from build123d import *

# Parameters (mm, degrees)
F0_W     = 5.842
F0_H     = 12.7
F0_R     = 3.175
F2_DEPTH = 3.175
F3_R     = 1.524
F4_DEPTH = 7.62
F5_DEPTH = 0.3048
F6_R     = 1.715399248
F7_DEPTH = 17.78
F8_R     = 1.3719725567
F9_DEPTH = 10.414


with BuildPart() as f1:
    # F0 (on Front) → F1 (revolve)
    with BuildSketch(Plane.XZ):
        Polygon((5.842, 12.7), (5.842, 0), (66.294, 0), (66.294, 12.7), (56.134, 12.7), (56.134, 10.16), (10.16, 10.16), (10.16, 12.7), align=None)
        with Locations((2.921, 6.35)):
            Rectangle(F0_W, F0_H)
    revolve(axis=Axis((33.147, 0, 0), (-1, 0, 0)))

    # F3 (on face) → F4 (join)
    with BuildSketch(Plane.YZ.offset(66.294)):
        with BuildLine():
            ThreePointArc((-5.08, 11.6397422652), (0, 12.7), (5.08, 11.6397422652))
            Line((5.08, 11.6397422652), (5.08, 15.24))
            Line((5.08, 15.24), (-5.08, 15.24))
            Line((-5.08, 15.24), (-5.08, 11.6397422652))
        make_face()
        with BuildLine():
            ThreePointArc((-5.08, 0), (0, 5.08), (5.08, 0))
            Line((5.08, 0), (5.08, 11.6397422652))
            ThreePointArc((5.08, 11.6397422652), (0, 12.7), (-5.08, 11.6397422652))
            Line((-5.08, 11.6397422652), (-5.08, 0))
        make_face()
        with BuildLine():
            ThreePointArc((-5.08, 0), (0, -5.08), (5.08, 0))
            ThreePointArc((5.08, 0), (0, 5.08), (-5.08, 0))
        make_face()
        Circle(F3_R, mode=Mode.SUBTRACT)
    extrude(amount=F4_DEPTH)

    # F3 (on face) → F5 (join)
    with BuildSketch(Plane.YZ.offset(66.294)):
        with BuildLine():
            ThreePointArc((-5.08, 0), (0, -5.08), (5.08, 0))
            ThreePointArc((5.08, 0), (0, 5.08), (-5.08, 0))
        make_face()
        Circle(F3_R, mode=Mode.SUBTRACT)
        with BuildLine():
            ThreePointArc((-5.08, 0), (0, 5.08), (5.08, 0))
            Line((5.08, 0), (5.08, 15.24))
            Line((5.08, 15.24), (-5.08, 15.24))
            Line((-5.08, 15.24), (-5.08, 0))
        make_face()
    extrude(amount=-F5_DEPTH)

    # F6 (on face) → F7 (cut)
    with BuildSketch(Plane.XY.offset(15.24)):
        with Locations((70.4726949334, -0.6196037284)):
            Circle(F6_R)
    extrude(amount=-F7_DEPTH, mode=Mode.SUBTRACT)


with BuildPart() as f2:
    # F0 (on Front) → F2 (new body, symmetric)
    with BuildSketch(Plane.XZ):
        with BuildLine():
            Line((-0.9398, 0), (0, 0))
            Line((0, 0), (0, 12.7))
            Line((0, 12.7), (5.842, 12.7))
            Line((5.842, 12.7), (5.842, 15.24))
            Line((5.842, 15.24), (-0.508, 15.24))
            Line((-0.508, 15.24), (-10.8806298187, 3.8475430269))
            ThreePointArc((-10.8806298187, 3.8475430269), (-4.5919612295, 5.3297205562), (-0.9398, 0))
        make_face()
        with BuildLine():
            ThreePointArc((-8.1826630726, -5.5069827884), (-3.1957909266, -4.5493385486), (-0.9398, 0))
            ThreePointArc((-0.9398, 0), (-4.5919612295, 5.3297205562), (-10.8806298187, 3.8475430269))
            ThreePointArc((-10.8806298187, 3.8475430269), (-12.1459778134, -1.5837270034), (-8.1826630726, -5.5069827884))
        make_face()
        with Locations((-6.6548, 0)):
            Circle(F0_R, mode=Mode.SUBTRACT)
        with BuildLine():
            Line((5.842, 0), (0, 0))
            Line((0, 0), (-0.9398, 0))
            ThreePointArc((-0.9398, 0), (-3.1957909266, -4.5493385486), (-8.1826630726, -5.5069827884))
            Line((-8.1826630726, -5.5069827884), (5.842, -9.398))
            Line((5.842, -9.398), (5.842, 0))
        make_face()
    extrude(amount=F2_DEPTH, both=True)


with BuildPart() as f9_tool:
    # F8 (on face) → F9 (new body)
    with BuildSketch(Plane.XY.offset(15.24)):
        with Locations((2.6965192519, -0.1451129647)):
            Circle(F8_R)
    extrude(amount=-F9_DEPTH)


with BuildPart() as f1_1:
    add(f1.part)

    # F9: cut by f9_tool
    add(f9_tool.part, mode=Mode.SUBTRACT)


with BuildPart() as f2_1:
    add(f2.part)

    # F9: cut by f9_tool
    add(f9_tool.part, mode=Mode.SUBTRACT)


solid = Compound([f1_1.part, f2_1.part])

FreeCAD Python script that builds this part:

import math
import FreeCAD as App
import Part
import Sketcher
Q = App.Units.Quantity

doc = App.newDocument("Part")
params = doc.addObject("Spreadsheet::Sheet", "Params")
for row, (alias, value) in enumerate([
    ("sketch1_width", "0.4 in"),
    ("sketch1_height", "0.5 in"),
    ("sketch1_height2", "0.1 in"),
    ("sketch1_width2", "1.81 in"),
    ("revolution_angle", "360 deg"),
    ("sketch2_radius", "0.2 in"),
    ("sketch2_diameter", "0.12 in"),
    ("sketch2_height", "0.6 in"),
    ("pad1_length", "0.3 in"),
    ("sketch3_radius", "0.2 in"),
    ("sketch3_diameter", "0.12 in"),
    ("sketch3_height", "0.6 in"),
    ("pad2_length", "0.012 in"),
    ("pocket1_length", "0.7 in"),
    ("sketch5_diameter", "0.25 in"),
    ("sketch5_height", "0.5 in"),
    ("sketch5_height2", "0.1 in"),
    ("sketch5_radius", "0.225 in"),
    ("sketch5_width", "0.23 in"),
    ("pad3_length", "0.25 in"),
    ("pad4_length", "0.41 in"),
], start=1):
    params.set(f"A{row}", alias)
    params.set(f"B{row}", "=" + value)
    params.setAlias(f"B{row}", alias)

body = doc.addObject("PartDesign::Body", "Body")

sketch1 = body.newObject("Sketcher::SketchObject", "Sketch")
sketch1.AttachmentSupport = (doc.getObject("XZ_Plane"), [""])
sketch1.MapMode = "FlatFace"
sketch1.addGeometry(Part.LineSegment(App.Vector(66.3, 0, 0), App.Vector(66.3, 12.7, 0)), False)
sketch1.addGeometry(Part.LineSegment(App.Vector(66.3, 12.7, 0), App.Vector(56.1, 12.7, 0)), False)
sketch1.addGeometry(Part.LineSegment(App.Vector(56.1, 12.7, 0), App.Vector(56.1, 10.2, 0)), False)
sketch1.addGeometry(Part.LineSegment(App.Vector(56.1, 10.2, 0), App.Vector(10.2, 10.2, 0)), False)
sketch1.addGeometry(Part.LineSegment(App.Vector(10.2, 10.2, 0), App.Vector(10.2, 12.7, 0)), False)
sketch1.addGeometry(Part.LineSegment(App.Vector(10.2, 12.7, 0), App.Vector(0, 12.7, 0)), False)
sketch1.addGeometry(Part.LineSegment(App.Vector(0, 12.7, 0), App.Vector(0, 0, 0)), False)
sketch1.addGeometry(Part.LineSegment(App.Vector(0, 0, 0), App.Vector(66.3, 0, 0)), False)
sketch1.addConstraint(Sketcher.Constraint("Coincident", 0, 2, 1, 1))
sketch1.addConstraint(Sketcher.Constraint("Coincident", 1, 2, 2, 1))
sketch1.addConstraint(Sketcher.Constraint("Coincident", 2, 2, 3, 1))
sketch1.addConstraint(Sketcher.Constraint("Coincident", 3, 2, 4, 1))
sketch1.addConstraint(Sketcher.Constraint("Coincident", 4, 2, 5, 1))
sketch1.addConstraint(Sketcher.Constraint("Coincident", 5, 2, 6, 1))
sketch1.addConstraint(Sketcher.Constraint("Coincident", 6, 2, 7, 1))
sketch1.addConstraint(Sketcher.Constraint("Coincident", 7, 2, 0, 1))
sketch1.addConstraint(Sketcher.Constraint("Vertical", 0))
sketch1.addConstraint(Sketcher.Constraint("Horizontal", 1))
sketch1.addConstraint(Sketcher.Constraint("Vertical", 2))
sketch1.addConstraint(Sketcher.Constraint("Horizontal", 3))
sketch1.addConstraint(Sketcher.Constraint("Vertical", 4))
sketch1.addConstraint(Sketcher.Constraint("Horizontal", 5))
sketch1.addConstraint(Sketcher.Constraint("Vertical", 6))
sketch1.addConstraint(Sketcher.Constraint("Horizontal", 7))
sketch1.addConstraint(Sketcher.Constraint("Coincident", 6, 2, -1, 1))
sketch1.addConstraint(Sketcher.Constraint("Horizontal", 1, 2, 4, 2))
sketch1.addConstraint(Sketcher.Constraint("Equal", 1, 5))
sketch1.addConstraint(Sketcher.Constraint("DistanceX", 1, 2, 1, 1, Q("0.4 in")))
sketch1.addConstraint(Sketcher.Constraint("DistanceY", 0, 1, 0, 2, Q("0.5 in")))
sketch1.addConstraint(Sketcher.Constraint("DistanceY", 2, 2, 2, 1, Q("0.1 in")))
sketch1.addConstraint(Sketcher.Constraint("DistanceX", 3, 2, 3, 1, Q("1.81 in")))
sketch1.setExpression("Constraints[19]", "Params.sketch1_width")
sketch1.setExpression("Constraints[20]", "Params.sketch1_height")
sketch1.setExpression("Constraints[21]", "Params.sketch1_height2")
sketch1.setExpression("Constraints[22]", "Params.sketch1_width2")
revolution = body.newObject("PartDesign::Revolution", "Revolution")
revolution.Profile = sketch1
revolution.ReferenceAxis = (sketch1, ["H_Axis"])
revolution.setExpression("Angle", "Params.revolution_angle")

sketch2 = body.newObject("Sketcher::SketchObject", "Sketch001")
sketch2.AttachmentSupport = (doc.getObject("YZ_Plane"), [""])
sketch2.MapMode = "FlatFace"
sketch2.AttachmentOffset = App.Placement(App.Vector(0, 0, 2.61 * 25.4), App.Rotation())
sketch2.addGeometry(Part.LineSegment(App.Vector(5.1, 15.2, 0), App.Vector(-5.1, 15.2, 0)), False)
sketch2.addGeometry(Part.LineSegment(App.Vector(-5.1, 15.2, 0), App.Vector(-5.1, 0, 0)), False)
sketch2.addGeometry(Part.ArcOfCircle(Part.Circle(App.Vector(0, 0, 0), App.Vector(0, 0, 1), 5.1), math.radians(180), math.radians(360)), False)
sketch2.addGeometry(Part.LineSegment(App.Vector(5.1, 0, 0), App.Vector(5.1, 15.2, 0)), False)
sketch2.addGeometry(Part.Circle(App.Vector(0, 0, 0), App.Vector(0, 0, 1), 1.5), False)
sketch2.addConstraint(Sketcher.Constraint("Coincident", 0, 2, 1, 1))
sketch2.addConstraint(Sketcher.Constraint("Tangent", 1, 2, 2, 1))
sketch2.addConstraint(Sketcher.Constraint("Tangent", 2, 2, 3, 1))
sketch2.addConstraint(Sketcher.Constraint("Coincident", 3, 2, 0, 1))
sketch2.addConstraint(Sketcher.Constraint("Horizontal", 0))
sketch2.addConstraint(Sketcher.Constraint("Vertical", 1))
sketch2.addConstraint(Sketcher.Constraint("Vertical", 3))
sketch2.addConstraint(Sketcher.Constraint("Coincident", 2, 3, -1, 1))
sketch2.addConstraint(Sketcher.Constraint("Coincident", 4, 3, -1, 1))
sketch2.addConstraint(Sketcher.Constraint("Radius", 2, Q("0.2 in")))
sketch2.addConstraint(Sketcher.Constraint("Diameter", 4, Q("0.12 in")))
sketch2.addConstraint(Sketcher.Constraint("DistanceY", 1, 2, 1, 1, Q("0.6 in")))
sketch2.setExpression("Constraints[9]", "Params.sketch2_radius")
sketch2.setExpression("Constraints[10]", "Params.sketch2_diameter")
sketch2.setExpression("Constraints[11]", "Params.sketch2_height")
pad1 = body.newObject("PartDesign::Pad", "Pad")
pad1.Profile = sketch2
pad1.setExpression("Length", "Params.pad1_length")

sketch3 = body.newObject("Sketcher::SketchObject", "Sketch002")
sketch3.AttachmentSupport = (doc.getObject("YZ_Plane"), [""])
sketch3.MapMode = "FlatFace"
sketch3.AttachmentOffset = App.Placement(App.Vector(0, 0, 2.61 * 25.4), App.Rotation())
sketch3.addGeometry(Part.ArcOfCircle(Part.Circle(App.Vector(0, 0, 0), App.Vector(0, 0, 1), 5.1), math.radians(180), math.radians(360)), False)
sketch3.addGeometry(Part.LineSegment(App.Vector(5.1, 0, 0), App.Vector(5.1, 15.2, 0)), False)
sketch3.addGeometry(Part.LineSegment(App.Vector(5.1, 15.2, 0), App.Vector(-5.1, 15.2, 0)), False)
sketch3.addGeometry(Part.LineSegment(App.Vector(-5.1, 15.2, 0), App.Vector(-5.1, 0, 0)), False)
sketch3.addGeometry(Part.Circle(App.Vector(0, 0, 0), App.Vector(0, 0, 1), 1.5), False)
sketch3.addConstraint(Sketcher.Constraint("Tangent", 0, 2, 1, 1))
sketch3.addConstraint(Sketcher.Constraint("Coincident", 1, 2, 2, 1))
sketch3.addConstraint(Sketcher.Constraint("Coincident", 2, 2, 3, 1))
sketch3.addConstraint(Sketcher.Constraint("Tangent", 3, 2, 0, 1))
sketch3.addConstraint(Sketcher.Constraint("Vertical", 1))
sketch3.addConstraint(Sketcher.Constraint("Horizontal", 2))
sketch3.addConstraint(Sketcher.Constraint("Vertical", 3))
sketch3.addConstraint(Sketcher.Constraint("Coincident", 0, 3, -1, 1))
sketch3.addConstraint(Sketcher.Constraint("Coincident", 4, 3, -1, 1))
sketch3.addConstraint(Sketcher.Constraint("Radius", 0, Q("0.2 in")))
sketch3.addConstraint(Sketcher.Constraint("Diameter", 4, Q("0.12 in")))
sketch3.addConstraint(Sketcher.Constraint("DistanceY", 1, 1, 1, 2, Q("0.6 in")))
sketch3.setExpression("Constraints[9]", "Params.sketch3_radius")
sketch3.setExpression("Constraints[10]", "Params.sketch3_diameter")
sketch3.setExpression("Constraints[11]", "Params.sketch3_height")
pad2 = body.newObject("PartDesign::Pad", "Pad001")
pad2.Profile = sketch3
pad2.setExpression("Length", "Params.pad2_length")
pad2.Reversed = True

sketch4 = body.newObject("Sketcher::SketchObject", "Sketch003")
sketch4.AttachmentSupport = (doc.getObject("XY_Plane"), [""])
sketch4.MapMode = "FlatFace"
sketch4.AttachmentOffset = App.Placement(App.Vector(0, 0, 0.6 * 25.4), App.Rotation())
sketch4.addGeometry(Part.Circle(App.Vector(70.5, -0.6, 0), App.Vector(0, 0, 1), 1.7), False)
sketch4.addConstraint(Sketcher.Constraint("Diameter", 0, 3.430798))
sketch4.addConstraint(Sketcher.Constraint("DistanceX", -1, 1, 0, 3, 70.472695))
sketch4.addConstraint(Sketcher.Constraint("DistanceY", 0, 3, -1, 1, 0.619604))
pocket1 = body.newObject("PartDesign::Pocket", "Pocket")
pocket1.Profile = sketch4
pocket1.setExpression("Length", "Params.pocket1_length")
body2 = doc.addObject("PartDesign::Body", "Body001")

sketch5 = body2.newObject("Sketcher::SketchObject", "Sketch004")
sketch5.AttachmentSupport = (doc.getObject("XZ_Plane001"), [""])
sketch5.MapMode = "FlatFace"
sketch5.addGeometry(Part.LineSegment(App.Vector(0, 0, 0), App.Vector(0, 12.7, 0)), False)
sketch5.addGeometry(Part.LineSegment(App.Vector(0, 12.7, 0), App.Vector(5.8, 12.7, 0)), False)
sketch5.addGeometry(Part.LineSegment(App.Vector(5.8, 12.7, 0), App.Vector(5.8, 15.2, 0)), False)
sketch5.addGeometry(Part.LineSegment(App.Vector(5.8, 15.2, 0), App.Vector(-0.5, 15.2, 0)), False)
sketch5.addGeometry(Part.LineSegment(App.Vector(-0.5, 15.2, 0), App.Vector(-10.9, 3.8, 0)), False)
sketch5.addGeometry(Part.ArcOfCircle(Part.Circle(App.Vector(-6.7, 0, 0), App.Vector(0, 0, 1), 5.7), math.radians(138), math.radians(254)), False)
sketch5.addGeometry(Part.LineSegment(App.Vector(-8.2, -5.5, 0), App.Vector(5.8, -9.4, 0)), False)
sketch5.addGeometry(Part.LineSegment(App.Vector(5.8, -9.4, 0), App.Vector(5.8, 0, 0)), False)
sketch5.addGeometry(Part.LineSegment(App.Vector(5.8, 0, 0), App.Vector(0, 0, 0)), False)
sketch5.addGeometry(Part.Circle(App.Vector(-6.7, 0, 0), App.Vector(0, 0, 1), 3.2), False)
sketch5.addConstraint(Sketcher.Constraint("Coincident", 0, 2, 1, 1))
sketch5.addConstraint(Sketcher.Constraint("Coincident", 1, 2, 2, 1))
sketch5.addConstraint(Sketcher.Constraint("Coincident", 2, 2, 3, 1))
sketch5.addConstraint(Sketcher.Constraint("Coincident", 3, 2, 4, 1))
sketch5.addConstraint(Sketcher.Constraint("Tangent", 4, 2, 5, 1))
sketch5.addConstraint(Sketcher.Constraint("Tangent", 5, 2, 6, 1))
sketch5.addConstraint(Sketcher.Constraint("Coincident", 6, 2, 7, 1))
sketch5.addConstraint(Sketcher.Constraint("Coincident", 7, 2, 8, 1))
sketch5.addConstraint(Sketcher.Constraint("Coincident", 8, 2, 0, 1))
sketch5.addConstraint(Sketcher.Constraint("Vertical", 0))
sketch5.addConstraint(Sketcher.Constraint("Horizontal", 1))
sketch5.addConstraint(Sketcher.Constraint("Vertical", 2))
sketch5.addConstraint(Sketcher.Constraint("Horizontal", 3))
sketch5.addConstraint(Sketcher.Constraint("Vertical", 7))
sketch5.addConstraint(Sketcher.Constraint("Horizontal", 8))
sketch5.addConstraint(Sketcher.Constraint("Coincident", 8, 2, -1, 1))
sketch5.addConstraint(Sketcher.Constraint("Coincident", 9, 3, 5, 3))
sketch5.addConstraint(Sketcher.Constraint("PointOnObject", 5, 3, -1))
sketch5.addConstraint(Sketcher.Constraint("Vertical", 2, 2, 6, 2))
sketch5.addConstraint(Sketcher.Constraint("Diameter", 9, Q("0.25 in")))
sketch5.addConstraint(Sketcher.Constraint("DistanceY", 0, 1, 0, 2, Q("0.5 in")))
sketch5.addConstraint(Sketcher.Constraint("DistanceY", 2, 1, 2, 2, Q("0.1 in")))
sketch5.addConstraint(Sketcher.Constraint("Radius", 5, Q("0.225 in")))
sketch5.addConstraint(Sketcher.Constraint("DistanceX", 1, 1, 1, 2, Q("0.23 in")))
sketch5.addConstraint(Sketcher.Constraint("DistanceX", 3, 2, 3, 1, Q("0.25 in")))
sketch5.addConstraint(Sketcher.Constraint("DistanceY", 7, 1, 7, 2, Q("0.37 in")))
sketch5.addConstraint(Sketcher.Constraint("DistanceX", 5, 3, -1, 1, Q("0.262 in")))
sketch5.setExpression("Constraints[19]", "Params.sketch5_diameter")
sketch5.setExpression("Constraints[20]", "Params.sketch5_height")
sketch5.setExpression("Constraints[21]", "Params.sketch5_height2")
sketch5.setExpression("Constraints[22]", "Params.sketch5_radius")
sketch5.setExpression("Constraints[23]", "Params.sketch5_width")
pad3 = body2.newObject("PartDesign::Pad", "Pad002")
pad3.Profile = sketch5
pad3.setExpression("Length", "Params.pad3_length")
pad3.Midplane = True
body3 = doc.addObject("PartDesign::Body", "Body002")

sketch6 = body3.newObject("Sketcher::SketchObject", "Sketch005")
sketch6.AttachmentSupport = (doc.getObject("XY_Plane002"), [""])
sketch6.MapMode = "FlatFace"
sketch6.AttachmentOffset = App.Placement(App.Vector(0, 0, 0.6 * 25.4), App.Rotation())
sketch6.addGeometry(Part.Circle(App.Vector(2.7, -0.1, 0), App.Vector(0, 0, 1), 1.4), False)
sketch6.addConstraint(Sketcher.Constraint("Diameter", 0, 2.743945))
sketch6.addConstraint(Sketcher.Constraint("DistanceX", -1, 1, 0, 3, 2.696519))
sketch6.addConstraint(Sketcher.Constraint("DistanceY", 0, 3, -1, 1, 0.145113))
pad4 = body3.newObject("PartDesign::Pad", "Pad003")
pad4.Profile = sketch6
pad4.setExpression("Length", "Params.pad4_length")
pad4.Reversed = True
doc.recompute()

body4 = doc.addObject("PartDesign::Body", "Body003")
body4.BaseFeature = body3
boolean = body.newObject("PartDesign::Boolean", "Boolean")
boolean.Type = "Cut"
boolean.addObjects([body4])
doc.recompute()

boolean2 = body2.newObject("PartDesign::Boolean", "Boolean001")
boolean2.Type = "Cut"
boolean2.addObjects([body3])

doc.recompute()
